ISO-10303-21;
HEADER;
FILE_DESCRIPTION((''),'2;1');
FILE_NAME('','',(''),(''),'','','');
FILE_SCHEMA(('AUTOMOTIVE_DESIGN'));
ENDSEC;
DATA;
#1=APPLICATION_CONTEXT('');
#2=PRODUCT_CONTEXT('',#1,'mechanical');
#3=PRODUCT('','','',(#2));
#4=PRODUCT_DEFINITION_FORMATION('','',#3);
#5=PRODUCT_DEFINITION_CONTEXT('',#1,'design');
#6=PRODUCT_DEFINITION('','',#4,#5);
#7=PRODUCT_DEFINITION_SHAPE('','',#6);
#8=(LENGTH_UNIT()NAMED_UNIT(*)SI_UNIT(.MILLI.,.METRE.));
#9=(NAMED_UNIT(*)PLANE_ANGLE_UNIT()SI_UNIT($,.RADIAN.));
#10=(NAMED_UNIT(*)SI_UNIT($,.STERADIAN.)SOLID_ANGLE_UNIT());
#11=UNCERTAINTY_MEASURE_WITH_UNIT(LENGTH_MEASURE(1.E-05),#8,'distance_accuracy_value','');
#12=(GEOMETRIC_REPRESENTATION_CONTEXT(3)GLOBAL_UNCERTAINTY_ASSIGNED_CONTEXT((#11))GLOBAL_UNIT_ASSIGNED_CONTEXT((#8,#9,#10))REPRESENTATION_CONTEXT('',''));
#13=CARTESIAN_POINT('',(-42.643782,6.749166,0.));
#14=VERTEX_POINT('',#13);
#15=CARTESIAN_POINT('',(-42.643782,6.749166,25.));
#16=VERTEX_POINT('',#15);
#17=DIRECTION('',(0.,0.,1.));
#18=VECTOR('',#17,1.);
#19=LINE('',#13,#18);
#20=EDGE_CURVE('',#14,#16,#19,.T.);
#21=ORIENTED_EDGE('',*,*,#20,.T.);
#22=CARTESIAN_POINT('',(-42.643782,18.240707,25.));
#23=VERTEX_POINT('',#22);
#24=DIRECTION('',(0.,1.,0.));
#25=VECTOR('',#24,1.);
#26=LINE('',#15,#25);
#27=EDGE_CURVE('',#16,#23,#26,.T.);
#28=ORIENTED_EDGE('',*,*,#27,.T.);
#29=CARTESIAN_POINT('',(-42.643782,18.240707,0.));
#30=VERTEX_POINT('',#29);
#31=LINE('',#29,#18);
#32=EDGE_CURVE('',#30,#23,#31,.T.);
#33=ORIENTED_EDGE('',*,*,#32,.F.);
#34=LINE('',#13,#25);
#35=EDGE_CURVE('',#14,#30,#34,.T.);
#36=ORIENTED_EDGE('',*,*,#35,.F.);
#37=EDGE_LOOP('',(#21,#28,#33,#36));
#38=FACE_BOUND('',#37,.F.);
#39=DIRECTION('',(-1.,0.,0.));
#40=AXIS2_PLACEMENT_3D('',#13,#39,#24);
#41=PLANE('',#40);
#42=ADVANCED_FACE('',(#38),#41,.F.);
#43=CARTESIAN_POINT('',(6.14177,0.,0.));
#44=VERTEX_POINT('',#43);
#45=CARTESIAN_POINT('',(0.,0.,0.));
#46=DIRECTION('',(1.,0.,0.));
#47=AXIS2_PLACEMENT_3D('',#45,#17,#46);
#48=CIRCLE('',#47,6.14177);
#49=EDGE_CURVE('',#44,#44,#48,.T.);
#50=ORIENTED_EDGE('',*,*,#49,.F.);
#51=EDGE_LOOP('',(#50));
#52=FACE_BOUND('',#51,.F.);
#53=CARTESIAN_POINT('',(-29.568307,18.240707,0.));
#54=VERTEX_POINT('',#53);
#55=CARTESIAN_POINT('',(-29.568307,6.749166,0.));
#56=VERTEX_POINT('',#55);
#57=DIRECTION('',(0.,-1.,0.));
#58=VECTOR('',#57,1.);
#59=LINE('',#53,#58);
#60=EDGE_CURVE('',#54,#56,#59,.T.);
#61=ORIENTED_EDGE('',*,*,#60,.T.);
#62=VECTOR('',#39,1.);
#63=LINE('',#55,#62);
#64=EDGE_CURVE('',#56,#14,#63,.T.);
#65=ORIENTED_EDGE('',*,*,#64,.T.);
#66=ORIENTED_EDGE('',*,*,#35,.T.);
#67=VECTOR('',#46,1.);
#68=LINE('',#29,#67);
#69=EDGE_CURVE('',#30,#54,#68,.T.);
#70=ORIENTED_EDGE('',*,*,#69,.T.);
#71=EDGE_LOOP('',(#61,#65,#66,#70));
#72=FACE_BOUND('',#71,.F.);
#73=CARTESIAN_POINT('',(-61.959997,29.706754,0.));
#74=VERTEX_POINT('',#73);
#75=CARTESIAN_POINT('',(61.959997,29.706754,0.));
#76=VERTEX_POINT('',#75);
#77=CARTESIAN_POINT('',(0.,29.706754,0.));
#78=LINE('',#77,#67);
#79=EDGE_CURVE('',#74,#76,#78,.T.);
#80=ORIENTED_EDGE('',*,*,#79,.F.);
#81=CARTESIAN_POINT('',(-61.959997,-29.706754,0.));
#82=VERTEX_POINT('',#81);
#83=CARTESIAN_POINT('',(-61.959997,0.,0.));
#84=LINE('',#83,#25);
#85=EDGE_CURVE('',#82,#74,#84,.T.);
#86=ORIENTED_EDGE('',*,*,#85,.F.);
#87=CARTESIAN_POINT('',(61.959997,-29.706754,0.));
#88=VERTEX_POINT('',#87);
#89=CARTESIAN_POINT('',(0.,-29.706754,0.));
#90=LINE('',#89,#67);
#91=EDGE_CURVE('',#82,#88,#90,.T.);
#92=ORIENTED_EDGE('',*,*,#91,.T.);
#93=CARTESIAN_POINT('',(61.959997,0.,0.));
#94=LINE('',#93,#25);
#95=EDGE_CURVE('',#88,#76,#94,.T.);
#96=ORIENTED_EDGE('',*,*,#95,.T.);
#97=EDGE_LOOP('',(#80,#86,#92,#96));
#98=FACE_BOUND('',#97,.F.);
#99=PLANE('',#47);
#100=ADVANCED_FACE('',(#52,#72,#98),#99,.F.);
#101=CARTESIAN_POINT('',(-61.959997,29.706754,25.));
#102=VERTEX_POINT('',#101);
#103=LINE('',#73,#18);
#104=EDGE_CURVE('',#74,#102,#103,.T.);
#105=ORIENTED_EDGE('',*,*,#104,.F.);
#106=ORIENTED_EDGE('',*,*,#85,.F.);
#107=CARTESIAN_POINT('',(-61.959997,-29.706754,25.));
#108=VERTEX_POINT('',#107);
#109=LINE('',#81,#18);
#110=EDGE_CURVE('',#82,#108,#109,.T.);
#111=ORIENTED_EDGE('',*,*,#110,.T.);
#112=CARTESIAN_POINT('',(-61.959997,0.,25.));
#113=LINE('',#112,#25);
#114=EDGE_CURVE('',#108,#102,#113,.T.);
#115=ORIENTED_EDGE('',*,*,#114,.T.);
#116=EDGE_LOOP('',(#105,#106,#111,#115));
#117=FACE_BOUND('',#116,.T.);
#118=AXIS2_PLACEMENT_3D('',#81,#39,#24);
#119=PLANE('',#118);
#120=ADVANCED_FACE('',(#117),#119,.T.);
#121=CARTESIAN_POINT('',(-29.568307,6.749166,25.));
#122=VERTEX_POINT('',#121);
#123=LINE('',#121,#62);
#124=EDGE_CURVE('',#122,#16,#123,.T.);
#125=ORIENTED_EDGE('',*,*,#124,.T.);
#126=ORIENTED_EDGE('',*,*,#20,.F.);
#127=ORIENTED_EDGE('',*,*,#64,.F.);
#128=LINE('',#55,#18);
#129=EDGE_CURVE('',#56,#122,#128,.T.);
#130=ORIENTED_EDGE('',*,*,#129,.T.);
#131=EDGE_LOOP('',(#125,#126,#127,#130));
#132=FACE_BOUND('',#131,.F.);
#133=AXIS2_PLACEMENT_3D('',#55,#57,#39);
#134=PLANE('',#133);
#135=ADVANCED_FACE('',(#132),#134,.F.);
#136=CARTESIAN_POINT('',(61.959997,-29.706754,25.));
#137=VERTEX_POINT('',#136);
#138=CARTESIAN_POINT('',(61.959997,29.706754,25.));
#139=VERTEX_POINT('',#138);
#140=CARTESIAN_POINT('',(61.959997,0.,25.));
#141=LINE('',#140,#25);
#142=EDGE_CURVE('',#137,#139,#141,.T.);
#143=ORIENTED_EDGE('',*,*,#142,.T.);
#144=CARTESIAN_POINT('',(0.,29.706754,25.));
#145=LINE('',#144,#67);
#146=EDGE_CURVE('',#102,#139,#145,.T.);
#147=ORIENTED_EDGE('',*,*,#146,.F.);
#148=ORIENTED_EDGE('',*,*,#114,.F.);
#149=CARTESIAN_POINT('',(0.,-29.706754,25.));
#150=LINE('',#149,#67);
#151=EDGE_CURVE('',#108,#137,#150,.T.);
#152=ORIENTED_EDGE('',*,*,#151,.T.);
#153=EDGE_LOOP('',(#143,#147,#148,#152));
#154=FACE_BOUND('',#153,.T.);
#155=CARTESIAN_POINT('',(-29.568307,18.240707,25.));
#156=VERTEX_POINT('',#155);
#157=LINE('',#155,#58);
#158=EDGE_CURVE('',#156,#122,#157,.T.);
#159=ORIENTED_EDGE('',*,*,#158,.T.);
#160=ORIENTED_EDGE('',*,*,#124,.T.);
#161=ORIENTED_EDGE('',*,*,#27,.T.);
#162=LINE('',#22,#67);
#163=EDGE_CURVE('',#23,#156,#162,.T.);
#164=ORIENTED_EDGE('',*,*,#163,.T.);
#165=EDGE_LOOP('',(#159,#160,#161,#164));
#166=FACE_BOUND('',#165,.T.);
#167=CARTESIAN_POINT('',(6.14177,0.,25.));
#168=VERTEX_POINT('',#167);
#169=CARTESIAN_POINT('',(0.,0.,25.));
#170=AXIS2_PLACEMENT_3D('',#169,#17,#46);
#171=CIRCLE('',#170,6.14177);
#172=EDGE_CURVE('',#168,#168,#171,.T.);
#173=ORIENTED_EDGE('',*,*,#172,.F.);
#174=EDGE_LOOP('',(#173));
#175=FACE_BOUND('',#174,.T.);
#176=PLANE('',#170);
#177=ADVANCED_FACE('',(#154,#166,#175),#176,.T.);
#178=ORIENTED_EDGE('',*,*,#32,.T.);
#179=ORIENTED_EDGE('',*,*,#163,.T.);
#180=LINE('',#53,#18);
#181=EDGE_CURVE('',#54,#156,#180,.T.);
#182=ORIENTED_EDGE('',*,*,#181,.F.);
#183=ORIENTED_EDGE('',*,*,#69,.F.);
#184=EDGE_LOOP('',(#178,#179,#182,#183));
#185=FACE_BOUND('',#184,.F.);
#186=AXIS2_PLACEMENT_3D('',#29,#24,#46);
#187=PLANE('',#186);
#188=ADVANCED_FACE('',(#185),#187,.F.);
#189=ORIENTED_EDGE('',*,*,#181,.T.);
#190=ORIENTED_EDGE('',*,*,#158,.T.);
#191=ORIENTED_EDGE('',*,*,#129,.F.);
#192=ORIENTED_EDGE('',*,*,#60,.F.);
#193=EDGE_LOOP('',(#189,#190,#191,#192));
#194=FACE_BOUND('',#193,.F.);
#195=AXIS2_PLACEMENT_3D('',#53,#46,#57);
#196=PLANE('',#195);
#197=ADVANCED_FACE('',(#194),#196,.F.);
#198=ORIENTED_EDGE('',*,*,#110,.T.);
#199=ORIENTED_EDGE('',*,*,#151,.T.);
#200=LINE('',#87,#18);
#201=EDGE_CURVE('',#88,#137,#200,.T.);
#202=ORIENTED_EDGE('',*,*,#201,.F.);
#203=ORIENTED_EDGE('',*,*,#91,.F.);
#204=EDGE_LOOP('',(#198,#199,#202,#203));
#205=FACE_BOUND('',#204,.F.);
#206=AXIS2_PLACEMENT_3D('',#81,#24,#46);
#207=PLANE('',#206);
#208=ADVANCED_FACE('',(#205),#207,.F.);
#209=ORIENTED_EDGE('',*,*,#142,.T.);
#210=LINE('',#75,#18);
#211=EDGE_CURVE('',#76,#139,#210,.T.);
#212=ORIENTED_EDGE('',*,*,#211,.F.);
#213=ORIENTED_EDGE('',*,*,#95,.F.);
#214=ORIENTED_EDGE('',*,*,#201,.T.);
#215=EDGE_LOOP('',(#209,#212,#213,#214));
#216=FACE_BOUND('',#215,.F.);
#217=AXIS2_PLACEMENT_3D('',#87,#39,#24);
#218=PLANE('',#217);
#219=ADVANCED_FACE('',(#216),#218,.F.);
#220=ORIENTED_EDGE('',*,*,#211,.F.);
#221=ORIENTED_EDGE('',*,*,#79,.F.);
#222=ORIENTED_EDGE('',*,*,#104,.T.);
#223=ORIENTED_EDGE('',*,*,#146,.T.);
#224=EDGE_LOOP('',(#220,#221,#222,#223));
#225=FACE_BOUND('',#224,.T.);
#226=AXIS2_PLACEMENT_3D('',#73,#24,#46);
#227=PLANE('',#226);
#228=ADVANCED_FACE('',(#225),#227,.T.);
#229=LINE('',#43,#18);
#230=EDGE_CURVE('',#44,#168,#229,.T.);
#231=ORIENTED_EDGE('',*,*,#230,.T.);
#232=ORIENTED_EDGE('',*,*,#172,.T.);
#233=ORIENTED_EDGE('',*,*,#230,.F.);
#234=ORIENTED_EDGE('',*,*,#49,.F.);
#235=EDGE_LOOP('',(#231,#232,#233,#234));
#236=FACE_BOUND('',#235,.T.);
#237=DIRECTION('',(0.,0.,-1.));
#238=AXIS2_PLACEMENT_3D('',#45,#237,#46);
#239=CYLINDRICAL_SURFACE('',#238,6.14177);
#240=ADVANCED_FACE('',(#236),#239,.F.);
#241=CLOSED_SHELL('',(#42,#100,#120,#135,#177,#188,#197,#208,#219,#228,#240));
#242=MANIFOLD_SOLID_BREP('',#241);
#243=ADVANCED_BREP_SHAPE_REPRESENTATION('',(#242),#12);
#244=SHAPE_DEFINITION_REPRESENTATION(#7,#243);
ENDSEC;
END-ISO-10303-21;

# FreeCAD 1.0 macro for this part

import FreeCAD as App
import Part
import Sketcher
from FreeCAD import Vector


def add_polygon(sketch, points):
    """Adds a closed chain of lines whose ends are joined by coincident constraints."""
    first, n = sketch.GeometryCount, len(points)
    for a, b in zip(points, points[1:] + points[:1]):
        sketch.addGeometry(Part.LineSegment(App.Vector(*a, 0), App.Vector(*b, 0)), False)
    for i in range(n):
        sketch.addConstraint(Sketcher.Constraint("Coincident", first + i, 2, first + (i + 1) % n, 1))

doc = App.newDocument("Part")
body = doc.addObject("PartDesign::Body", "Body")

# Sketch on XY plane
sketch1 = body.newObject("Sketcher::SketchObject", "Sketch")
sketch1.AttachmentSupport = (doc.getObject("XY_Plane"), [""])
sketch1.MapMode = "FlatFace"
add_polygon(sketch1, [(-62, 30), (-62, -30), (62, -30), (62, 30)])  # lines 0-3
sketch1.addGeometry(Part.Circle(Vector(0, 0, 0), Vector(0, 0, 1), 6), False)  # 4
add_polygon(sketch1, [(-30, 7), (-43, 7), (-43, 18), (-30, 18)])  # lines 5-8
sketch1.addConstraint([
    Sketcher.Constraint("Vertical", 0),
    Sketcher.Constraint("Horizontal", 1),
    Sketcher.Constraint("Vertical", 2),
    Sketcher.Constraint("Horizontal", 3),
    Sketcher.Constraint("Horizontal", 5),
    Sketcher.Constraint("Vertical", 6),
    Sketcher.Constraint("Horizontal", 7),
    Sketcher.Constraint("Vertical", 8),
    Sketcher.Constraint("Coincident", 4, 3, -1, 1),
    Sketcher.Constraint("Symmetric", 0, 2, 2, 2, -1, 1),
    Sketcher.Constraint("Diameter", 4, 12.28354),
    Sketcher.Constraint("DistanceY", 6, 1, 6, 2, 11.491541),
    Sketcher.Constraint("DistanceX", 1, 1, 1, 2, 123.919994),
    Sketcher.Constraint("DistanceX", 5, 2, 5, 1, 13.075475),
    Sketcher.Constraint("DistanceY", 0, 2, 0, 1, 59.413508),
    Sketcher.Constraint("DistanceY", 5, 2, 3, 2, 22.957588),
    Sketcher.Constraint("DistanceX", 5, 2, 2, 2, 104.603779),
])
pad1 = body.newObject("PartDesign::Pad", "Pad")
pad1.Profile = sketch1
pad1.Length = 25

doc.recompute()
